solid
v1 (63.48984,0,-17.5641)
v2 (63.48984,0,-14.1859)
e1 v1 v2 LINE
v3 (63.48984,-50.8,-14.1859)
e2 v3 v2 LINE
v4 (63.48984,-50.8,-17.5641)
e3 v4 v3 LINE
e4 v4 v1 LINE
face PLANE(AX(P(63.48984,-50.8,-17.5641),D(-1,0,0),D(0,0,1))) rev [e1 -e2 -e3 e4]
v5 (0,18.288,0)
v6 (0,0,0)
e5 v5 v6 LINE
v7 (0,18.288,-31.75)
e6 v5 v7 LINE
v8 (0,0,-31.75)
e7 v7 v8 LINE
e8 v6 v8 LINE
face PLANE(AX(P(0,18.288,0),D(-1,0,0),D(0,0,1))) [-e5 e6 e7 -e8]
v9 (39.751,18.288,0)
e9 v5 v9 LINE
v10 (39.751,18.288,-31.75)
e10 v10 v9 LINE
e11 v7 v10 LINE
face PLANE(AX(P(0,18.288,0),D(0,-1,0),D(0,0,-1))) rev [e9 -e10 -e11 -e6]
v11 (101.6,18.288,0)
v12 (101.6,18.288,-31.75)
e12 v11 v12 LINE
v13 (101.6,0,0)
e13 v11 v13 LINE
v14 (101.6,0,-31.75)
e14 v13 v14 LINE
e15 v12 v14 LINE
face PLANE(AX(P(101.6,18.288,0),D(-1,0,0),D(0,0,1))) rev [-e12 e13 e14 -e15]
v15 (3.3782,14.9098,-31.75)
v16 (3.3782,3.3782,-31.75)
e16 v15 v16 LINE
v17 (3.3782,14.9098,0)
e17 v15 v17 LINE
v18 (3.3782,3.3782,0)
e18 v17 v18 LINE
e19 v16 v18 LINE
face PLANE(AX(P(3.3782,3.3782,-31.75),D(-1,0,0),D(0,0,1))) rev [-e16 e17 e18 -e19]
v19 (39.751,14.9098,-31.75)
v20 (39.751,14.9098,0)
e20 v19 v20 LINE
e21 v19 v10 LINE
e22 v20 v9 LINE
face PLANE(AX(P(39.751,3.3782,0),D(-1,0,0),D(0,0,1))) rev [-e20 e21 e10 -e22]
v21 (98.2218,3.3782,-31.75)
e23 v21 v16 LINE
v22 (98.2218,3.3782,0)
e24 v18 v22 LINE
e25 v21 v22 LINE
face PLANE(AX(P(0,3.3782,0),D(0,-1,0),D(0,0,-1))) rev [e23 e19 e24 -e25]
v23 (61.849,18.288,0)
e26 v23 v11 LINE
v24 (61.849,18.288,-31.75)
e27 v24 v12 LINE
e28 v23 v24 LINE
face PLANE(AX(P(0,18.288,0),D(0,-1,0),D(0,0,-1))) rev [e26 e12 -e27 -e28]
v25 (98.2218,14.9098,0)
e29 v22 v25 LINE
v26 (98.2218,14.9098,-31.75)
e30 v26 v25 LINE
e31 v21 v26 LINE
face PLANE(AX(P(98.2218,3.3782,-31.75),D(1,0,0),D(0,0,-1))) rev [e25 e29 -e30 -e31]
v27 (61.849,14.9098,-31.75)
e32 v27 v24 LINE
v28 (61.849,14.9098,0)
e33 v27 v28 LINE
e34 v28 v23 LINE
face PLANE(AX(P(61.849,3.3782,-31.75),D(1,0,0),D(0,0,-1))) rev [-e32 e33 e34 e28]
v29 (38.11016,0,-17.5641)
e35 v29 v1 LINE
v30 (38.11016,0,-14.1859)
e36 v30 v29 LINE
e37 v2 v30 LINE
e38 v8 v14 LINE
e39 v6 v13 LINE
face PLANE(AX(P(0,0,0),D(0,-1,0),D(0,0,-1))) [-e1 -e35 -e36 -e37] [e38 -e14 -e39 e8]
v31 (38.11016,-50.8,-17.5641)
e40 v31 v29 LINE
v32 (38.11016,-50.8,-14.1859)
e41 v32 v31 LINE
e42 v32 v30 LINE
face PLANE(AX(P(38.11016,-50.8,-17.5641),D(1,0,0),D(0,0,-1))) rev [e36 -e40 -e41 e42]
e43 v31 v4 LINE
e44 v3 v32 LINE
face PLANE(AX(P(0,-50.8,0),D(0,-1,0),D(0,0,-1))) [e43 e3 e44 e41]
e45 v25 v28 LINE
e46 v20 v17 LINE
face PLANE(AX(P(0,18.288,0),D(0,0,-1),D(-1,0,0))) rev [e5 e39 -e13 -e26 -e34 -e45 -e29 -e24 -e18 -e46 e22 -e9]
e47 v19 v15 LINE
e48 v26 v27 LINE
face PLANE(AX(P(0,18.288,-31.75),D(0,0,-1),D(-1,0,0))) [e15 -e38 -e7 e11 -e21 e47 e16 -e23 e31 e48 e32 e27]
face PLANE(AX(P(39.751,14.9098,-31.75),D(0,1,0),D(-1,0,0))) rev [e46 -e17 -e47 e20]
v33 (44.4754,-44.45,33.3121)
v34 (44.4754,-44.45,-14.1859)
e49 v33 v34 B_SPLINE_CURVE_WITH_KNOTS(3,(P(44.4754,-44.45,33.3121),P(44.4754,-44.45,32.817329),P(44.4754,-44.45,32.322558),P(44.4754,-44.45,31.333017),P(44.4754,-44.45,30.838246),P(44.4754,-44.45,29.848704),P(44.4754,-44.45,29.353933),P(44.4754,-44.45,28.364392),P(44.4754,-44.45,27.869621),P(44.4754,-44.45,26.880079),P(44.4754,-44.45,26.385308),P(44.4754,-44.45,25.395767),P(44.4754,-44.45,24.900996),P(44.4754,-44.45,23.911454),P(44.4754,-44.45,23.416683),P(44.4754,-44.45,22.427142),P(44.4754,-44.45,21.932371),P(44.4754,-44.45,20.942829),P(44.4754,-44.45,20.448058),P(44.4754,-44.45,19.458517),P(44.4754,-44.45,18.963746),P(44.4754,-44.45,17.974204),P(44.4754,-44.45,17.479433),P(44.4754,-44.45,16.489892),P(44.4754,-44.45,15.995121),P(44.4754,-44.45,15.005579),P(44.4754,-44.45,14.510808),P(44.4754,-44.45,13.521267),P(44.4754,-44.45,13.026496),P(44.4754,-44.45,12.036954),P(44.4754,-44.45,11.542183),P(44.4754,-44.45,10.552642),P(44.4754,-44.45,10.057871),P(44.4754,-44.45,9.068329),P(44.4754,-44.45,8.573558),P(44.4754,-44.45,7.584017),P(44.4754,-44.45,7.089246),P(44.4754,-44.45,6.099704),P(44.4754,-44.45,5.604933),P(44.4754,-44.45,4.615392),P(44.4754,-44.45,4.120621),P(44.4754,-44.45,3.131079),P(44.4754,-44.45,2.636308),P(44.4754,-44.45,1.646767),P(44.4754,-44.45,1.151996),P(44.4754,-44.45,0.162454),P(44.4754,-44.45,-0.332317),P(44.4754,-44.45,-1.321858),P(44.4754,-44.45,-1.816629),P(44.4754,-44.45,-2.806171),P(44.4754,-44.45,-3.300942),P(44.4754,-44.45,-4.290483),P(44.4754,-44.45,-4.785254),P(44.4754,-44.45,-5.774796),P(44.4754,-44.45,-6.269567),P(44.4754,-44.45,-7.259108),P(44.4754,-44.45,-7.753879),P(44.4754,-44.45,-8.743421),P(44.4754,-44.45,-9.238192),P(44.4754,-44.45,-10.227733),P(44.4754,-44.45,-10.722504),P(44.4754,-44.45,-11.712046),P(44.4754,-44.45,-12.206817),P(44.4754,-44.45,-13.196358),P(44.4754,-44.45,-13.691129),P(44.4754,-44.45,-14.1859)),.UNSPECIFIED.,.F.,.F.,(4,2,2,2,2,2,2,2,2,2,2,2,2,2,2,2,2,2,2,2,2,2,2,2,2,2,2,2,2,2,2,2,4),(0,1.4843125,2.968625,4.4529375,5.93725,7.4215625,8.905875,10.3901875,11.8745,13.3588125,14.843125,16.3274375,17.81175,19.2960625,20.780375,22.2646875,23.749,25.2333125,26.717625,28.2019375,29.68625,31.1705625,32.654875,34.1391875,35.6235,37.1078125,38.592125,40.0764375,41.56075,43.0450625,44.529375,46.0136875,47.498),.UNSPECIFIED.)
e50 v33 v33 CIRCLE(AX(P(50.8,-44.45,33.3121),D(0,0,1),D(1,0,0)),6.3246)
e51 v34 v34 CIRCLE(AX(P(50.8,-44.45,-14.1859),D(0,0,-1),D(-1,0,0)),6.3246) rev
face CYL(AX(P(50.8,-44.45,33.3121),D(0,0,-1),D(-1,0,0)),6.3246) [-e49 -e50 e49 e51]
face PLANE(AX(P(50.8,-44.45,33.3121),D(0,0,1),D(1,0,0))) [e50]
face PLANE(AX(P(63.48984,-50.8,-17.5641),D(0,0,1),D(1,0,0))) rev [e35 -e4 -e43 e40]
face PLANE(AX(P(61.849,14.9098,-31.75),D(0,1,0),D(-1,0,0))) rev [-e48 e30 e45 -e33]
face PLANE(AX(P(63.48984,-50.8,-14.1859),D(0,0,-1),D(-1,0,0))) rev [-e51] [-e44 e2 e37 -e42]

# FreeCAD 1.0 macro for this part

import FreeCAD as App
import Part
import Sketcher
Q = App.Units.Quantity


def add_polygon(sketch, points):
    """Adds a closed chain of lines whose ends are joined by coincident constraints."""
    first, n = sketch.GeometryCount, len(points)
    for a, b in zip(points, points[1:] + points[:1]):
        sketch.addGeometry(Part.LineSegment(App.Vector(*a, 0), App.Vector(*b, 0)), False)
    for i in range(n):
        sketch.addConstraint(Sketcher.Constraint("Coincident", first + i, 2, first + (i + 1) % n, 1))

doc = App.newDocument("Part")
body = doc.addObject("PartDesign::Body", "Body")

sketch1 = body.newObject("Sketcher::SketchObject", "Sketch")
sketch1.AttachmentSupport = (doc.getObject("XZ_Plane"), [""])
sketch1.MapMode = "FlatFace"
add_polygon(sketch1, [(0, -31.75), (0, 0), (101.6, 0), (101.6, -31.75)])
sketch1.addConstraint([
    Sketcher.Constraint("Vertical", 0),
    Sketcher.Constraint("Horizontal", 1),
    Sketcher.Constraint("Vertical", 2),
    Sketcher.Constraint("Horizontal", 3),
    Sketcher.Constraint("Coincident", 0, 2, -1, 1),
    Sketcher.Constraint("DistanceX", 1, 1, 1, 2, Q("4 in")),
    Sketcher.Constraint("DistanceY", 0, 1, 0, 2, Q("1.25 in")),
])
pad1 = body.newObject("PartDesign::Pad", "Pad")
pad1.Profile = sketch1
pad1.Length = Q("0.72 in")
pad1.Reversed = True

sketch2 = body.newObject("Sketcher::SketchObject", "Sketch001")
sketch2.AttachmentSupport = (doc.getObject("XZ_Plane"), [""])
sketch2.MapMode = "FlatFace"
sketch2.AttachmentOffset = App.Placement(App.Vector(0, 0, -0.72 * 25.4), App.Rotation())
add_polygon(sketch2, [(39.751, -31.75), (39.751, 0), (61.849, 0), (61.849, -31.75)])
sketch2.addConstraint([
    Sketcher.Constraint("Vertical", 0),
    Sketcher.Constraint("Horizontal", 1),
    Sketcher.Constraint("Vertical", 2),
    Sketcher.Constraint("Horizontal", 3),
    Sketcher.Constraint("PointOnObject", 0, 2, -1),
    Sketcher.Constraint("DistanceX", 1, 1, 1, 2, Q("0.87 in")),
    Sketcher.Constraint("DistanceY", 0, 1, 0, 2, Q("1.25 in")),
    Sketcher.Constraint("DistanceX", -1, 1, 0, 2, Q("1.565 in")),
])
pocket1 = body.newObject("PartDesign::Pocket", "Pocket")
pocket1.Profile = sketch2
pocket1.Length = Q("0.587 in")
pocket1.Reversed = True

sketch3 = body.newObject("Sketcher::SketchObject", "Sketch002")
sketch3.AttachmentSupport = (doc.getObject("XY_Plane"), [""])
sketch3.MapMode = "FlatFace"
add_polygon(sketch3, [(3.3782, 14.9098), (3.3782, 3.3782), (39.751, 3.3782), (39.751, 14.9098)])
add_polygon(sketch3, [(61.849, 14.9098), (61.849, 3.3782), (98.2218, 3.3782), (98.2218, 14.9098)])
sketch3.addConstraint([
    Sketcher.Constraint("Vertical", 0),
    Sketcher.Constraint("Horizontal", 1),
    Sketcher.Constraint("Vertical", 2),
    Sketcher.Constraint("Horizontal", 3),
    Sketcher.Constraint("Vertical", 4),
    Sketcher.Constraint("Horizontal", 5),
    Sketcher.Constraint("Vertical", 6),
    Sketcher.Constraint("Horizontal", 7),
    Sketcher.Constraint("Horizontal", 1, 2, 4, 2),
    Sketcher.Constraint("Horizontal", 3, 2, 6, 2),
    Sketcher.Constraint("Equal", 3, 5),
    Sketcher.Constraint("DistanceX", 1, 1, 1, 2, Q("1.432 in")),
    Sketcher.Constraint("DistanceY", 0, 2, 0, 1, Q("0.454 in")),
    Sketcher.Constraint("DistanceX", 1, 2, 4, 2, Q("0.87 in")),
    Sketcher.Constraint("DistanceX", -1, 1, 0, 2, Q("0.133 in")),
    Sketcher.Constraint("DistanceY", -1, 1, 0, 2, Q("0.133 in")),
])
pocket2 = body.newObject("PartDesign::Pocket", "Pocket001")
pocket2.Profile = sketch3
pocket2.Type = "ThroughAll"

sketch4 = body.newObject("Sketcher::SketchObject", "Sketch003")
sketch4.AttachmentSupport = (doc.getObject("XZ_Plane"), [""])
sketch4.MapMode = "FlatFace"
add_polygon(sketch4, [(38.11016, -14.1859), (38.11016, -17.5641), (63.48984, -17.5641), (63.48984, -14.1859)])
sketch4.addConstraint([
    Sketcher.Constraint("Vertical", 0),
    Sketcher.Constraint("Horizontal", 1),
    Sketcher.Constraint("Vertical", 2),
    Sketcher.Constraint("Horizontal", 3),
    Sketcher.Constraint("DistanceY", 0, 2, 0, 1, Q("0.133 in")),
    Sketcher.Constraint("DistanceX", 1, 1, 1, 2, Q("0.9992 in")),
    Sketcher.Constraint("DistanceX", -1, 1, 0, 2, Q("1.5004 in")),
    Sketcher.Constraint("DistanceY", 0, 2, -1, 1, Q("0.6915 in")),
])
pad2 = body.newObject("PartDesign::Pad", "Pad001")
pad2.Profile = sketch4
pad2.Length = Q("2 in")

sketch5 = body.newObject("Sketcher::SketchObject", "Sketch004")
sketch5.AttachmentSupport = (doc.getObject("XY_Plane"), [""])
sketch5.MapMode = "FlatFace"
sketch5.AttachmentOffset = App.Placement(App.Vector(0, 0, -0.5585 * 25.4), App.Rotation())
sketch5.addGeometry(Part.Circle(App.Vector(50.8, -44.45, 0), App.Vector(0, 0, 1), 6.3246), False)
sketch5.addConstraint([
    Sketcher.Constraint("Diameter", 0, Q("0.498 in")),
    Sketcher.Constraint("DistanceX", -1, 1, 0, 3, Q("2 in")),
    Sketcher.Constraint("DistanceY", 0, 3, -1, 1, Q("1.75 in")),
])
pad3 = body.newObject("PartDesign::Pad", "Pad002")
pad3.Profile = sketch5
pad3.Length = Q("1.87 in")

doc.recompute()
